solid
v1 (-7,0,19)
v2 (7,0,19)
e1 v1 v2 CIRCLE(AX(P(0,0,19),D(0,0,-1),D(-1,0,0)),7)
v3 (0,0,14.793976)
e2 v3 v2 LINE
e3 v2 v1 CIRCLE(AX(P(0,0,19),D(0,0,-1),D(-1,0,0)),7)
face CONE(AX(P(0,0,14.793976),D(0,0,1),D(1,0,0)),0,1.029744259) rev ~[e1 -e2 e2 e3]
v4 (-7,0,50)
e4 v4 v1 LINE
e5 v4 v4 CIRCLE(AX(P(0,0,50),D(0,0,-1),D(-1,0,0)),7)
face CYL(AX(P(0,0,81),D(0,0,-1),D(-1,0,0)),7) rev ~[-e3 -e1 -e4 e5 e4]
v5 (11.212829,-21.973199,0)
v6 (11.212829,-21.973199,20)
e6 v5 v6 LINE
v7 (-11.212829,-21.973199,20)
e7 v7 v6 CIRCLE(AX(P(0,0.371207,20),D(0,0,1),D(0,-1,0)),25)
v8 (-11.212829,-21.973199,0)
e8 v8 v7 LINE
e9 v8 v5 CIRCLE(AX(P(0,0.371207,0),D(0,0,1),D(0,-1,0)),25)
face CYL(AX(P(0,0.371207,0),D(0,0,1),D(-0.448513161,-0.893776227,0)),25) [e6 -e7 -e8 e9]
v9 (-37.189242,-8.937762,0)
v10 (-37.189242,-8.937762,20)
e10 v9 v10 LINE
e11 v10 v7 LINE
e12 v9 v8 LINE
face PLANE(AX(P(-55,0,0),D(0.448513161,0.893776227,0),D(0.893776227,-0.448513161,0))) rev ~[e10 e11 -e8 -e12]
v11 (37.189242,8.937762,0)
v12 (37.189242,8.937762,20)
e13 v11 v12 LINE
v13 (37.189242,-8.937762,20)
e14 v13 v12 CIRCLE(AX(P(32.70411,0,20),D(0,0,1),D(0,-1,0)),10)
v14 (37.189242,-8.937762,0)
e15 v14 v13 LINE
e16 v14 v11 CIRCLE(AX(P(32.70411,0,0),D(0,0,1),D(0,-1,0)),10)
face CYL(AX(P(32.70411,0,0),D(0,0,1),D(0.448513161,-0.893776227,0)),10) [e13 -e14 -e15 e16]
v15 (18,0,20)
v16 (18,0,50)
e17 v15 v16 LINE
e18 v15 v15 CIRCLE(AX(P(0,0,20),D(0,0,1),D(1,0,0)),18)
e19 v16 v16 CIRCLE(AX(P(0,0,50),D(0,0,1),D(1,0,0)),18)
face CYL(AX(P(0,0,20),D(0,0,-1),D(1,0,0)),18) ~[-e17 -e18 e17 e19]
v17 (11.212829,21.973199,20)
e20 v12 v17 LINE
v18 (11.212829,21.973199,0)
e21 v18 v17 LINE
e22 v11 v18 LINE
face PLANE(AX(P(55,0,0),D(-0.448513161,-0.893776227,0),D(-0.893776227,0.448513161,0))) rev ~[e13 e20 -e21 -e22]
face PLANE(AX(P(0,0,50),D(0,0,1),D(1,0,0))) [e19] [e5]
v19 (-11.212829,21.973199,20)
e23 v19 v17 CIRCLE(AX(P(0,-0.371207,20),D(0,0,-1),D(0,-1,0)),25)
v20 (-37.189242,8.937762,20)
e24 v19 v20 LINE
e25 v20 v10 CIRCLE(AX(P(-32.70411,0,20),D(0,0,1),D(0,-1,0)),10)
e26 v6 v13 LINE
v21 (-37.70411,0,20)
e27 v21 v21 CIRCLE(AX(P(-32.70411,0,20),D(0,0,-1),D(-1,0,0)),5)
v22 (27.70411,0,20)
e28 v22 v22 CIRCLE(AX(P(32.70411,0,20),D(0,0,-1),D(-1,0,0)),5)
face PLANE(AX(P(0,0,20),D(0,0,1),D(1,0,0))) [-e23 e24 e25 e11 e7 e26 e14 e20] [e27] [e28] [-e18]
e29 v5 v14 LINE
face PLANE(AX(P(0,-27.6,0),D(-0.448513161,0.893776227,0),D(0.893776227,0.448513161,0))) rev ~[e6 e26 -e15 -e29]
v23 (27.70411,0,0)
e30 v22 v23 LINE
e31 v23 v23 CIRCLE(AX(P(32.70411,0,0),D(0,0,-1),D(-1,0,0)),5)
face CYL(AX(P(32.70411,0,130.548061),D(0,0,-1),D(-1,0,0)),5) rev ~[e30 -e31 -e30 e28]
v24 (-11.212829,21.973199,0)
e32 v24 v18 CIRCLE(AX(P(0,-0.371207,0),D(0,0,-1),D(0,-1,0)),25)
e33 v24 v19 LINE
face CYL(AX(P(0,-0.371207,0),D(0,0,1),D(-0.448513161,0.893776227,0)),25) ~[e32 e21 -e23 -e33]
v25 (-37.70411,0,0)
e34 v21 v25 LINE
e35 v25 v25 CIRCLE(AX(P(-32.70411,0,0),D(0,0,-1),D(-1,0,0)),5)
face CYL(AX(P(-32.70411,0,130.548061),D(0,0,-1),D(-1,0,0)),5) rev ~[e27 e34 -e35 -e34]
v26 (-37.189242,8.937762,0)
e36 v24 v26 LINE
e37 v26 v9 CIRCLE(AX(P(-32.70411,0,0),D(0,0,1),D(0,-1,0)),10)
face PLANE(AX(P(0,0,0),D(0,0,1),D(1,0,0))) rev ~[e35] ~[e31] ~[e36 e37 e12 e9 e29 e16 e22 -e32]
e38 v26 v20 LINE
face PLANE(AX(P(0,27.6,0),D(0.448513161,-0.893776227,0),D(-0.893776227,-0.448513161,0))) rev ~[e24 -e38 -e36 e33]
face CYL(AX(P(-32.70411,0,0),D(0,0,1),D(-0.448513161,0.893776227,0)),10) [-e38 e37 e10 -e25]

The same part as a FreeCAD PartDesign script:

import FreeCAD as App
import Part
import Sketcher
from FreeCAD import Vector
Q = App.Units.Quantity


def edges_at(feature, points):
    """Names of the edges that pass closest to the given points."""
    edges = feature.Shape.Edges
    near = lambda p: min(range(len(edges)), key=lambda i: edges[i].distToShape(Part.Vertex(*p))[0])
    return sorted({f"Edge{near(p) + 1}" for p in points})


def add_polygon(sketch, points):
    """Adds a closed chain of lines whose ends are joined by coincident constraints."""
    first, n = sketch.GeometryCount, len(points)
    for a, b in zip(points, points[1:] + points[:1]):
        sketch.addGeometry(Part.LineSegment(App.Vector(*a, 0), App.Vector(*b, 0)), False)
    for i in range(n):
        sketch.addConstraint(Sketcher.Constraint("Coincident", first + i, 2, first + (i + 1) % n, 1))

doc = App.newDocument("Part")
body = doc.addObject("PartDesign::Body", "Body")

# Sketch on XY plane
sketch1 = body.newObject("Sketcher::SketchObject", "Sketch")
sketch1.AttachmentSupport = (doc.getObject("XY_Plane"), [""])
sketch1.MapMode = "FlatFace"
add_polygon(sketch1, [(0, 27.6), (-55, 0), (0, -27.6), (55, 0)])  # lines 0-3
sketch1.addConstraint([
    Sketcher.Constraint("Symmetric", 0, 2, 2, 2, -1, 1),
    Sketcher.Constraint("Symmetric", 1, 2, 3, 2, -1, 1),
    Sketcher.Constraint("PointOnObject", 0, 2, -1),
    Sketcher.Constraint("PointOnObject", 1, 2, -2),
    Sketcher.Constraint("DistanceX", 0, 2, -1, 1, Q("55 mm")),
    Sketcher.Constraint("DistanceY", 1, 2, -1, 1, Q("27.6 mm")),
])
pad1 = body.newObject("PartDesign::Pad", "Pad")
pad1.Profile = sketch1
pad1.Length = 20
doc.recompute()

fillet = body.newObject("PartDesign::Fillet", "Fillet")
fillet.Base = (pad1, edges_at(pad1, [(55, 0, 10), (-55, 0, 10)]))
fillet.Radius = 10
doc.recompute()

fillet2 = body.newObject("PartDesign::Fillet", "Fillet001")
fillet2.Base = (fillet, edges_at(fillet, [(0, -27.6, 10), (0, 27.6, 10)]))
fillet2.Radius = 25

# Sketch on XY plane
sketch2 = body.newObject("Sketcher::SketchObject", "Sketch001")
sketch2.AttachmentSupport = (doc.getObject("XY_Plane"), [""])
sketch2.MapMode = "FlatFace"
sketch2.AttachmentOffset = App.Placement(Vector(0, 0, 20), App.Rotation())
sketch2.addGeometry(Part.Circle(Vector(0, 0, 0), Vector(0, 0, 1), 18), False)
sketch2.addConstraint([
    Sketcher.Constraint("Coincident", 0, 3, -1, 1),
    Sketcher.Constraint("Diameter", 0, Q("36 mm")),
])
pad2 = body.newObject("PartDesign::Pad", "Pad001")
pad2.Profile = sketch2
pad2.Length = 30

# Sketch on XY plane
sketch3 = body.newObject("Sketcher::SketchObject", "Sketch002")
sketch3.AttachmentSupport = (doc.getObject("XY_Plane"), [""])
sketch3.MapMode = "FlatFace"
sketch3.AttachmentOffset = App.Placement(Vector(0, 0, 20), App.Rotation())
sketch3.addGeometry([
    Part.Circle(Vector(-32.70411, 0, 0), Vector(0, 0, 1), 5),
    Part.Circle(Vector(32.70411, 0, 0), Vector(0, 0, 1), 5),
], False)
sketch3.addConstraint([
    Sketcher.Constraint("Equal", 0, 1),
    Sketcher.Constraint("Symmetric", 0, 3, 1, 3, -1, 1),
    Sketcher.Constraint("PointOnObject", 0, 3, -1),
    Sketcher.Constraint("Diameter", 0, Q("10 mm")),
    Sketcher.Constraint("DistanceX", 0, 3, -1, 1, Q("32.70411 mm")),
])
doc.recompute()
hole = body.newObject("PartDesign::Hole", "Hole")
hole.Profile = sketch3
hole.ThreadType = "None"
hole.Diameter = 10
hole.DepthType = "ThroughAll"

# Sketch on XY plane
sketch4 = body.newObject("Sketcher::SketchObject", "Sketch003")
sketch4.AttachmentSupport = (doc.getObject("XY_Plane"), [""])
sketch4.MapMode = "FlatFace"
sketch4.AttachmentOffset = App.Placement(Vector(0, 0, 50), App.Rotation())
sketch4.addGeometry(Part.Circle(Vector(0, 0, 0), Vector(0, 0, 1), 7), False)
sketch4.addConstraint([
    Sketcher.Constraint("Coincident", 0, 3, -1, 1),
    Sketcher.Constraint("Diameter", 0, Q("14 mm")),
])
doc.recompute()
hole2 = body.newObject("PartDesign::Hole", "Hole001")
hole2.Profile = sketch4
hole2.ThreadType = "None"
hole2.Diameter = 14
hole2.DepthType = "Dimension"
hole2.Depth = 31
hole2.DrillPoint = "Angled"
hole2.DrillPointAngle = 118

doc.recompute()
